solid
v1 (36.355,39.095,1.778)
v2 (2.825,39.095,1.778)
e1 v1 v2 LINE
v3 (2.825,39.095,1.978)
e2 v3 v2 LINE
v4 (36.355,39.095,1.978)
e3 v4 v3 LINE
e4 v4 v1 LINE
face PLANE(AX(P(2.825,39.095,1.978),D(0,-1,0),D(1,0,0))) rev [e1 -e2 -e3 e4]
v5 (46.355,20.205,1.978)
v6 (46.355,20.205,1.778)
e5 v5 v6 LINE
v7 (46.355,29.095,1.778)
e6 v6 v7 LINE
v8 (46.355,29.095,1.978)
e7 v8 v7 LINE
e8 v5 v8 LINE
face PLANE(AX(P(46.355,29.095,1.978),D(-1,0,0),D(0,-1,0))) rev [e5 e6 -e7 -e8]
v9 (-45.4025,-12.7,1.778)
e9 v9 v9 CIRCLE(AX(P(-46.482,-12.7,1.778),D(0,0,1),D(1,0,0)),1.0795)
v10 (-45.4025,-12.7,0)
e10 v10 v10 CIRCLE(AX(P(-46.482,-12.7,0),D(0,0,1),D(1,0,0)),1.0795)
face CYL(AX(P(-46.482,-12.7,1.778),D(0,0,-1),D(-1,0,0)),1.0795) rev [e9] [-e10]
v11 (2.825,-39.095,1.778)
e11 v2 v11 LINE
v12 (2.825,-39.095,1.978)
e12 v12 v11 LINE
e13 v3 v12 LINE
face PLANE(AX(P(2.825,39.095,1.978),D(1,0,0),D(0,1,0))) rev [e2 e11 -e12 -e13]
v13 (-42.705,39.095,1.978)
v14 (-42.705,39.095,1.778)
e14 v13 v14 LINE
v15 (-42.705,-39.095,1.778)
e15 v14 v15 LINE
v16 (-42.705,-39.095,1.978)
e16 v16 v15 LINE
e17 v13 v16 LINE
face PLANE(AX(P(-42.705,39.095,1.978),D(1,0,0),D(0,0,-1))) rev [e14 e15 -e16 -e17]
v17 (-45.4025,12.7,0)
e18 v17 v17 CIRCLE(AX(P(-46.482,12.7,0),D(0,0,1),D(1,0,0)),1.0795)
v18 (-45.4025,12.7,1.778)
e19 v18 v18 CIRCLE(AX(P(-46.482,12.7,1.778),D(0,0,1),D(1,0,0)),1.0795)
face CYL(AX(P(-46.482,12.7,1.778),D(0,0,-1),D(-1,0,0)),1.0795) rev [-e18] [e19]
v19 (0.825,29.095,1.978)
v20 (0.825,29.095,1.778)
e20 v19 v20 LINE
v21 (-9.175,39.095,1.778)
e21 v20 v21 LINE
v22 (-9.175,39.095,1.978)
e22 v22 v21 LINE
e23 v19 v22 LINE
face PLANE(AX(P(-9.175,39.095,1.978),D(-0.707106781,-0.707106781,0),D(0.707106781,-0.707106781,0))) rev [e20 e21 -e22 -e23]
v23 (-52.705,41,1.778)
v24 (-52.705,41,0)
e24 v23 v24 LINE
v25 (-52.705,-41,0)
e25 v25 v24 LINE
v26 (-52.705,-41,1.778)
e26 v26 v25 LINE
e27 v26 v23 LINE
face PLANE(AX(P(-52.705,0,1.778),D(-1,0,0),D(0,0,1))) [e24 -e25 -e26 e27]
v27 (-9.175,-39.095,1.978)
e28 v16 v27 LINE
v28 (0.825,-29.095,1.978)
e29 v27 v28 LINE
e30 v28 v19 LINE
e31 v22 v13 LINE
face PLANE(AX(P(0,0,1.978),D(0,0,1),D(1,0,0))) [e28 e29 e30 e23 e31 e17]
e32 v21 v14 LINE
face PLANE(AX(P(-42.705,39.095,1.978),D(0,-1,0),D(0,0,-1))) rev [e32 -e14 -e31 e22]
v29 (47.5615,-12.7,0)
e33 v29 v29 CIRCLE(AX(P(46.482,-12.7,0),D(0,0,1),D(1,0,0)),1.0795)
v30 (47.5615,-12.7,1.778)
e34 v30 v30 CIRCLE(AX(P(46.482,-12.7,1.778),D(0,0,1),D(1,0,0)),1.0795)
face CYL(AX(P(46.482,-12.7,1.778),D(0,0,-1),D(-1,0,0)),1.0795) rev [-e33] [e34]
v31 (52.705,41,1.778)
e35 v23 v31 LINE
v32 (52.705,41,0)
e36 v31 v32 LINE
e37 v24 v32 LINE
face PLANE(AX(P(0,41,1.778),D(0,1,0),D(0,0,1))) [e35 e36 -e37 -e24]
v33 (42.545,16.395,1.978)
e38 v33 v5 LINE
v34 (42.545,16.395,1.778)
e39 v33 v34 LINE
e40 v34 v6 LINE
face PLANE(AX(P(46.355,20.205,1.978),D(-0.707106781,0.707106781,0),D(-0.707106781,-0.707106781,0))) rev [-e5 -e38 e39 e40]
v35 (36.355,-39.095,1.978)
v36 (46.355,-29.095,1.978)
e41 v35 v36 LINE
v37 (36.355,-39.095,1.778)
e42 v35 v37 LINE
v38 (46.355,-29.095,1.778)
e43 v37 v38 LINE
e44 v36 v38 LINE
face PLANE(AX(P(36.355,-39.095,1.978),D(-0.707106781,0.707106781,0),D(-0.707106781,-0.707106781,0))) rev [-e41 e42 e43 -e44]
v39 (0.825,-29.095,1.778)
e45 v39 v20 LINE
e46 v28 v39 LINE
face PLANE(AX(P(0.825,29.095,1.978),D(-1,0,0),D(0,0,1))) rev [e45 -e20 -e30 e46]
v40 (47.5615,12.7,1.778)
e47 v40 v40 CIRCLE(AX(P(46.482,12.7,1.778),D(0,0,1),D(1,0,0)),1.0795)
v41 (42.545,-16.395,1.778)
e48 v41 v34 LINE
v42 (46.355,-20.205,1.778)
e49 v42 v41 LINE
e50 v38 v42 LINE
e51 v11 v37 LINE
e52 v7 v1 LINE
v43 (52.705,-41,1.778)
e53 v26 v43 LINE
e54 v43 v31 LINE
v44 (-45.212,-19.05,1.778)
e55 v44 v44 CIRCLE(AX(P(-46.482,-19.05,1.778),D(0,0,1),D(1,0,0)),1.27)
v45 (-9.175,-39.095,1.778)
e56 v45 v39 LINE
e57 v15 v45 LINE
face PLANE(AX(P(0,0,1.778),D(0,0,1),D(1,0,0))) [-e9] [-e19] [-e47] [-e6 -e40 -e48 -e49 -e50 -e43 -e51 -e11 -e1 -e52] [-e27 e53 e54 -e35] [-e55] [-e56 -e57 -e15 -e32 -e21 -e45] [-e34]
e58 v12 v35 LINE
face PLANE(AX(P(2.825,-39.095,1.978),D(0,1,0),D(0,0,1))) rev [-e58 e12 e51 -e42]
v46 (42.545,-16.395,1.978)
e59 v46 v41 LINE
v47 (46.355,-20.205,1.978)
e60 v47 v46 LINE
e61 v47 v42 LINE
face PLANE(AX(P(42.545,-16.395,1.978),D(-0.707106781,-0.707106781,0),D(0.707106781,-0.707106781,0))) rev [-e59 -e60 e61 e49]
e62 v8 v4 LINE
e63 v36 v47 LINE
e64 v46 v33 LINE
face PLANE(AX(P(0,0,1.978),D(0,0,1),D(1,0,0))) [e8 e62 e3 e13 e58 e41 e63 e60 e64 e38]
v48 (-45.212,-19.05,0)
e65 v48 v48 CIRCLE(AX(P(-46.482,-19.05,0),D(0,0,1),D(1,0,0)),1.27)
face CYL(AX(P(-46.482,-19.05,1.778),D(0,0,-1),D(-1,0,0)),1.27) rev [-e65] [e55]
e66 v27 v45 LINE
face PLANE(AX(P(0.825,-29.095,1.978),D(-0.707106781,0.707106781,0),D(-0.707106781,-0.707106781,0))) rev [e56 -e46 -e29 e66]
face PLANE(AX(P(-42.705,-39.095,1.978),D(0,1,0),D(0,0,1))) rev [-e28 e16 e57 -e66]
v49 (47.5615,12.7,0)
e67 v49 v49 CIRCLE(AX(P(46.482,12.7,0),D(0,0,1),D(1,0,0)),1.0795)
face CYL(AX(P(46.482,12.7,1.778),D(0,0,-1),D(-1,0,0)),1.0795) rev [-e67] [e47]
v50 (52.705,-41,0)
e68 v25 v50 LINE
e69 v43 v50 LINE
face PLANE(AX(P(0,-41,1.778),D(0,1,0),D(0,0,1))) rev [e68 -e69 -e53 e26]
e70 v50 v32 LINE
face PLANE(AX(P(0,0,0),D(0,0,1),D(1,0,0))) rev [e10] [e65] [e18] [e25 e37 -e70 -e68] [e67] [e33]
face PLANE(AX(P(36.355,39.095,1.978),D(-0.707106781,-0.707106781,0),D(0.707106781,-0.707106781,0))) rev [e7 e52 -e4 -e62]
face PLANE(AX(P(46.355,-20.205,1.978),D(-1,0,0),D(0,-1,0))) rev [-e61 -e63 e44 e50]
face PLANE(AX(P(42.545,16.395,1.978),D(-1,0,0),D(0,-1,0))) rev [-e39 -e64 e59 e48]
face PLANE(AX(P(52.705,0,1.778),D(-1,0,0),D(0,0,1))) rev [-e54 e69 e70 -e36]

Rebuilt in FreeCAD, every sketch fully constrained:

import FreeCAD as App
import Part
import Sketcher

V = App.Vector
Q = App.Units.Quantity


def add_polygon(sketch, points):
    """Adds a closed chain of lines whose ends are joined by coincident constraints."""
    first, n = sketch.GeometryCount, len(points)
    for a, b in zip(points, points[1:] + points[:1]):
        sketch.addGeometry(Part.LineSegment(App.Vector(*a, 0), App.Vector(*b, 0)), False)
    for i in range(n):
        sketch.addConstraint(Sketcher.Constraint("Coincident", first + i, 2, first + (i + 1) % n, 1))

doc = App.newDocument("Part")
params = doc.addObject("Spreadsheet::Sheet", "Params")
for row, (alias, value) in enumerate([
    ("sketch1_diameter", "0.1 in"),
    ("sketch1_diameter2", "0.085 in"),
    ("sketch1_width", "4.15 in"),
    ("pad1_length", "0.07 in"),
    ("sketch2_height", "0.35 in"),
    ("pad2_length", "0.2 mm"),
], start=1):
    params.set(f"A{row}", alias)
    params.set(f"B{row}", "=" + value)
    params.setAlias(f"B{row}", alias)

body = doc.addObject("PartDesign::Body", "Body")

# Sketch on XY plane
sketch1 = body.newObject("Sketcher::SketchObject", "Sketch")
sketch1.AttachmentSupport = (doc.getObject("XY_Plane"), [""])
sketch1.MapMode = "FlatFace"
add_polygon(sketch1, [(-52.7, 41), (-52.7, -41), (52.7, -41), (52.7, 41)])  # lines 0-3
sketch1.addGeometry(Part.Circle(V(-46.5, -19.1, 0), V(0, 0, 1), 1.3), False)  # 4
sketch1.addGeometry(Part.Circle(V(-46.5, -12.7, 0), V(0, 0, 1), 1.1), False)  # 5
sketch1.addGeometry(Part.Circle(V(46.5, -12.7, 0), V(0, 0, 1), 1.1), False)  # 6
sketch1.addGeometry(Part.Circle(V(-46.5, 12.7, 0), V(0, 0, 1), 1.1), False)  # 7
sketch1.addGeometry(Part.Circle(V(46.5, 12.7, 0), V(0, 0, 1), 1.1), False)  # 8
sketch1.addConstraint([
    Sketcher.Constraint("Vertical", 0),
    Sketcher.Constraint("Horizontal", 1),
    Sketcher.Constraint("Vertical", 2),
    Sketcher.Constraint("Horizontal", 3),
    Sketcher.Constraint("Equal", 5, 6),
    Sketcher.Constraint("Equal", 6, 7),
    Sketcher.Constraint("Equal", 7, 8),
    Sketcher.Constraint("Symmetric", 6, 3, 7, 3, -1, 1),
    Sketcher.Constraint("Symmetric", 5, 3, 8, 3, -1, 1),
    Sketcher.Constraint("Symmetric", 0, 2, 2, 2, -1, 1),
    Sketcher.Constraint("Symmetric", 5, 3, 6, 3, -2),
    Sketcher.Constraint("Vertical", 4, 3, 5, 3),
    Sketcher.Constraint("Diameter", 4, Q("0.1 in")),
    Sketcher.Constraint("Diameter", 5, Q("0.085 in")),
    Sketcher.Constraint("DistanceY", 5, 3, 7, 3, Q("1 in")),
    Sketcher.Constraint("DistanceX", 1, 1, 1, 2, Q("4.15 in")),
    Sketcher.Constraint("DistanceX", 4, 3, -1, 1, Q("1.83 in")),
    Sketcher.Constraint("DistanceY", 4, 3, -1, 1, Q("0.75 in")),
    Sketcher.Constraint("DistanceY", 0, 2, 0, 1, 82.0),
])
sketch1.setExpression("Constraints[16]", "Params.sketch1_diameter")
sketch1.setExpression("Constraints[17]", "Params.sketch1_diameter2")
sketch1.setExpression("Constraints[19]", "Params.sketch1_width")
pad1 = body.newObject("PartDesign::Pad", "Pad")
pad1.Profile = sketch1
pad1.setExpression("Length", "Params.pad1_length")

# Sketch on XY plane
sketch2 = body.newObject("Sketcher::SketchObject", "Sketch001")
sketch2.AttachmentSupport = (doc.getObject("XY_Plane"), [""])
sketch2.MapMode = "FlatFace"
sketch2.AttachmentOffset = App.Placement(V(0, 0, 0.07 * 25.4), App.Rotation())
add_polygon(sketch2, [(1, 29), (-9, 39), (-43, 39), (-43, -39), (-9, -39), (1, -29)])  # lines 0-5
add_polygon(sketch2, [(43, 16), (46, 20), (46, 29), (36, 39), (3, 39), (3, -39), (36, -39), (46, -29), (46, -20), (43, -16)])  # lines 6-15
sketch2.addConstraint([
    Sketcher.Constraint("Horizontal", 1),
    Sketcher.Constraint("Vertical", 2),
    Sketcher.Constraint("Horizontal", 3),
    Sketcher.Constraint("Vertical", 5),
    Sketcher.Constraint("Vertical", 7),
    Sketcher.Constraint("Horizontal", 9),
    Sketcher.Constraint("Vertical", 10),
    Sketcher.Constraint("Horizontal", 11),
    Sketcher.Constraint("Vertical", 13),
    Sketcher.Constraint("Vertical", 15),
    Sketcher.Constraint("Symmetric", 0, 2, 3, 2, -1),
    Sketcher.Constraint("Symmetric", 8, 2, 11, 2, -1),
    Sketcher.Constraint("Symmetric", 7, 2, 12, 2, -1),
    Sketcher.Constraint("Perpendicular", 0, 4),
    Sketcher.Constraint("Parallel", 4, 6),
    Sketcher.Constraint("Perpendicular", 6, 8),
    Sketcher.Constraint("Perpendicular", 8, 12),
    Sketcher.Constraint("Perpendicular", 12, 14),
    Sketcher.Constraint("Horizontal", 5, 2, 7, 2),
    Sketcher.Constraint("Horizontal", 1, 2, 8, 2),
    Sketcher.Constraint("Equal", 3, 9),
    Sketcher.Constraint("Equal", 7, 13),
    Sketcher.Constraint("DistanceY", 7, 1, 7, 2, Q("0.35 in")),
    Sketcher.Constraint("DistanceY", 12, 2, 14, 2, Q("0.5 in")),
    Sketcher.Constraint("DistanceX", -1, 1, 6, 2, Q("1.825 in")),
    Sketcher.Constraint("DistanceX", 1, 2, 1, 1, 33.53),
    Sketcher.Constraint("DistanceY", 2, 2, 2, 1, 78.19),
    Sketcher.Constraint("DistanceY", 5, 1, 5, 2, 58.19),
    Sketcher.Constraint("DistanceX", 0, 2, -1, 1, 9.175),
])
sketch2.setExpression("Constraints[38]", "Params.sketch2_height")
pad2 = body.newObject("PartDesign::Pad", "Pad001")
pad2.Profile = sketch2
pad2.setExpression("Length", "Params.pad2_length")

doc.recompute()
